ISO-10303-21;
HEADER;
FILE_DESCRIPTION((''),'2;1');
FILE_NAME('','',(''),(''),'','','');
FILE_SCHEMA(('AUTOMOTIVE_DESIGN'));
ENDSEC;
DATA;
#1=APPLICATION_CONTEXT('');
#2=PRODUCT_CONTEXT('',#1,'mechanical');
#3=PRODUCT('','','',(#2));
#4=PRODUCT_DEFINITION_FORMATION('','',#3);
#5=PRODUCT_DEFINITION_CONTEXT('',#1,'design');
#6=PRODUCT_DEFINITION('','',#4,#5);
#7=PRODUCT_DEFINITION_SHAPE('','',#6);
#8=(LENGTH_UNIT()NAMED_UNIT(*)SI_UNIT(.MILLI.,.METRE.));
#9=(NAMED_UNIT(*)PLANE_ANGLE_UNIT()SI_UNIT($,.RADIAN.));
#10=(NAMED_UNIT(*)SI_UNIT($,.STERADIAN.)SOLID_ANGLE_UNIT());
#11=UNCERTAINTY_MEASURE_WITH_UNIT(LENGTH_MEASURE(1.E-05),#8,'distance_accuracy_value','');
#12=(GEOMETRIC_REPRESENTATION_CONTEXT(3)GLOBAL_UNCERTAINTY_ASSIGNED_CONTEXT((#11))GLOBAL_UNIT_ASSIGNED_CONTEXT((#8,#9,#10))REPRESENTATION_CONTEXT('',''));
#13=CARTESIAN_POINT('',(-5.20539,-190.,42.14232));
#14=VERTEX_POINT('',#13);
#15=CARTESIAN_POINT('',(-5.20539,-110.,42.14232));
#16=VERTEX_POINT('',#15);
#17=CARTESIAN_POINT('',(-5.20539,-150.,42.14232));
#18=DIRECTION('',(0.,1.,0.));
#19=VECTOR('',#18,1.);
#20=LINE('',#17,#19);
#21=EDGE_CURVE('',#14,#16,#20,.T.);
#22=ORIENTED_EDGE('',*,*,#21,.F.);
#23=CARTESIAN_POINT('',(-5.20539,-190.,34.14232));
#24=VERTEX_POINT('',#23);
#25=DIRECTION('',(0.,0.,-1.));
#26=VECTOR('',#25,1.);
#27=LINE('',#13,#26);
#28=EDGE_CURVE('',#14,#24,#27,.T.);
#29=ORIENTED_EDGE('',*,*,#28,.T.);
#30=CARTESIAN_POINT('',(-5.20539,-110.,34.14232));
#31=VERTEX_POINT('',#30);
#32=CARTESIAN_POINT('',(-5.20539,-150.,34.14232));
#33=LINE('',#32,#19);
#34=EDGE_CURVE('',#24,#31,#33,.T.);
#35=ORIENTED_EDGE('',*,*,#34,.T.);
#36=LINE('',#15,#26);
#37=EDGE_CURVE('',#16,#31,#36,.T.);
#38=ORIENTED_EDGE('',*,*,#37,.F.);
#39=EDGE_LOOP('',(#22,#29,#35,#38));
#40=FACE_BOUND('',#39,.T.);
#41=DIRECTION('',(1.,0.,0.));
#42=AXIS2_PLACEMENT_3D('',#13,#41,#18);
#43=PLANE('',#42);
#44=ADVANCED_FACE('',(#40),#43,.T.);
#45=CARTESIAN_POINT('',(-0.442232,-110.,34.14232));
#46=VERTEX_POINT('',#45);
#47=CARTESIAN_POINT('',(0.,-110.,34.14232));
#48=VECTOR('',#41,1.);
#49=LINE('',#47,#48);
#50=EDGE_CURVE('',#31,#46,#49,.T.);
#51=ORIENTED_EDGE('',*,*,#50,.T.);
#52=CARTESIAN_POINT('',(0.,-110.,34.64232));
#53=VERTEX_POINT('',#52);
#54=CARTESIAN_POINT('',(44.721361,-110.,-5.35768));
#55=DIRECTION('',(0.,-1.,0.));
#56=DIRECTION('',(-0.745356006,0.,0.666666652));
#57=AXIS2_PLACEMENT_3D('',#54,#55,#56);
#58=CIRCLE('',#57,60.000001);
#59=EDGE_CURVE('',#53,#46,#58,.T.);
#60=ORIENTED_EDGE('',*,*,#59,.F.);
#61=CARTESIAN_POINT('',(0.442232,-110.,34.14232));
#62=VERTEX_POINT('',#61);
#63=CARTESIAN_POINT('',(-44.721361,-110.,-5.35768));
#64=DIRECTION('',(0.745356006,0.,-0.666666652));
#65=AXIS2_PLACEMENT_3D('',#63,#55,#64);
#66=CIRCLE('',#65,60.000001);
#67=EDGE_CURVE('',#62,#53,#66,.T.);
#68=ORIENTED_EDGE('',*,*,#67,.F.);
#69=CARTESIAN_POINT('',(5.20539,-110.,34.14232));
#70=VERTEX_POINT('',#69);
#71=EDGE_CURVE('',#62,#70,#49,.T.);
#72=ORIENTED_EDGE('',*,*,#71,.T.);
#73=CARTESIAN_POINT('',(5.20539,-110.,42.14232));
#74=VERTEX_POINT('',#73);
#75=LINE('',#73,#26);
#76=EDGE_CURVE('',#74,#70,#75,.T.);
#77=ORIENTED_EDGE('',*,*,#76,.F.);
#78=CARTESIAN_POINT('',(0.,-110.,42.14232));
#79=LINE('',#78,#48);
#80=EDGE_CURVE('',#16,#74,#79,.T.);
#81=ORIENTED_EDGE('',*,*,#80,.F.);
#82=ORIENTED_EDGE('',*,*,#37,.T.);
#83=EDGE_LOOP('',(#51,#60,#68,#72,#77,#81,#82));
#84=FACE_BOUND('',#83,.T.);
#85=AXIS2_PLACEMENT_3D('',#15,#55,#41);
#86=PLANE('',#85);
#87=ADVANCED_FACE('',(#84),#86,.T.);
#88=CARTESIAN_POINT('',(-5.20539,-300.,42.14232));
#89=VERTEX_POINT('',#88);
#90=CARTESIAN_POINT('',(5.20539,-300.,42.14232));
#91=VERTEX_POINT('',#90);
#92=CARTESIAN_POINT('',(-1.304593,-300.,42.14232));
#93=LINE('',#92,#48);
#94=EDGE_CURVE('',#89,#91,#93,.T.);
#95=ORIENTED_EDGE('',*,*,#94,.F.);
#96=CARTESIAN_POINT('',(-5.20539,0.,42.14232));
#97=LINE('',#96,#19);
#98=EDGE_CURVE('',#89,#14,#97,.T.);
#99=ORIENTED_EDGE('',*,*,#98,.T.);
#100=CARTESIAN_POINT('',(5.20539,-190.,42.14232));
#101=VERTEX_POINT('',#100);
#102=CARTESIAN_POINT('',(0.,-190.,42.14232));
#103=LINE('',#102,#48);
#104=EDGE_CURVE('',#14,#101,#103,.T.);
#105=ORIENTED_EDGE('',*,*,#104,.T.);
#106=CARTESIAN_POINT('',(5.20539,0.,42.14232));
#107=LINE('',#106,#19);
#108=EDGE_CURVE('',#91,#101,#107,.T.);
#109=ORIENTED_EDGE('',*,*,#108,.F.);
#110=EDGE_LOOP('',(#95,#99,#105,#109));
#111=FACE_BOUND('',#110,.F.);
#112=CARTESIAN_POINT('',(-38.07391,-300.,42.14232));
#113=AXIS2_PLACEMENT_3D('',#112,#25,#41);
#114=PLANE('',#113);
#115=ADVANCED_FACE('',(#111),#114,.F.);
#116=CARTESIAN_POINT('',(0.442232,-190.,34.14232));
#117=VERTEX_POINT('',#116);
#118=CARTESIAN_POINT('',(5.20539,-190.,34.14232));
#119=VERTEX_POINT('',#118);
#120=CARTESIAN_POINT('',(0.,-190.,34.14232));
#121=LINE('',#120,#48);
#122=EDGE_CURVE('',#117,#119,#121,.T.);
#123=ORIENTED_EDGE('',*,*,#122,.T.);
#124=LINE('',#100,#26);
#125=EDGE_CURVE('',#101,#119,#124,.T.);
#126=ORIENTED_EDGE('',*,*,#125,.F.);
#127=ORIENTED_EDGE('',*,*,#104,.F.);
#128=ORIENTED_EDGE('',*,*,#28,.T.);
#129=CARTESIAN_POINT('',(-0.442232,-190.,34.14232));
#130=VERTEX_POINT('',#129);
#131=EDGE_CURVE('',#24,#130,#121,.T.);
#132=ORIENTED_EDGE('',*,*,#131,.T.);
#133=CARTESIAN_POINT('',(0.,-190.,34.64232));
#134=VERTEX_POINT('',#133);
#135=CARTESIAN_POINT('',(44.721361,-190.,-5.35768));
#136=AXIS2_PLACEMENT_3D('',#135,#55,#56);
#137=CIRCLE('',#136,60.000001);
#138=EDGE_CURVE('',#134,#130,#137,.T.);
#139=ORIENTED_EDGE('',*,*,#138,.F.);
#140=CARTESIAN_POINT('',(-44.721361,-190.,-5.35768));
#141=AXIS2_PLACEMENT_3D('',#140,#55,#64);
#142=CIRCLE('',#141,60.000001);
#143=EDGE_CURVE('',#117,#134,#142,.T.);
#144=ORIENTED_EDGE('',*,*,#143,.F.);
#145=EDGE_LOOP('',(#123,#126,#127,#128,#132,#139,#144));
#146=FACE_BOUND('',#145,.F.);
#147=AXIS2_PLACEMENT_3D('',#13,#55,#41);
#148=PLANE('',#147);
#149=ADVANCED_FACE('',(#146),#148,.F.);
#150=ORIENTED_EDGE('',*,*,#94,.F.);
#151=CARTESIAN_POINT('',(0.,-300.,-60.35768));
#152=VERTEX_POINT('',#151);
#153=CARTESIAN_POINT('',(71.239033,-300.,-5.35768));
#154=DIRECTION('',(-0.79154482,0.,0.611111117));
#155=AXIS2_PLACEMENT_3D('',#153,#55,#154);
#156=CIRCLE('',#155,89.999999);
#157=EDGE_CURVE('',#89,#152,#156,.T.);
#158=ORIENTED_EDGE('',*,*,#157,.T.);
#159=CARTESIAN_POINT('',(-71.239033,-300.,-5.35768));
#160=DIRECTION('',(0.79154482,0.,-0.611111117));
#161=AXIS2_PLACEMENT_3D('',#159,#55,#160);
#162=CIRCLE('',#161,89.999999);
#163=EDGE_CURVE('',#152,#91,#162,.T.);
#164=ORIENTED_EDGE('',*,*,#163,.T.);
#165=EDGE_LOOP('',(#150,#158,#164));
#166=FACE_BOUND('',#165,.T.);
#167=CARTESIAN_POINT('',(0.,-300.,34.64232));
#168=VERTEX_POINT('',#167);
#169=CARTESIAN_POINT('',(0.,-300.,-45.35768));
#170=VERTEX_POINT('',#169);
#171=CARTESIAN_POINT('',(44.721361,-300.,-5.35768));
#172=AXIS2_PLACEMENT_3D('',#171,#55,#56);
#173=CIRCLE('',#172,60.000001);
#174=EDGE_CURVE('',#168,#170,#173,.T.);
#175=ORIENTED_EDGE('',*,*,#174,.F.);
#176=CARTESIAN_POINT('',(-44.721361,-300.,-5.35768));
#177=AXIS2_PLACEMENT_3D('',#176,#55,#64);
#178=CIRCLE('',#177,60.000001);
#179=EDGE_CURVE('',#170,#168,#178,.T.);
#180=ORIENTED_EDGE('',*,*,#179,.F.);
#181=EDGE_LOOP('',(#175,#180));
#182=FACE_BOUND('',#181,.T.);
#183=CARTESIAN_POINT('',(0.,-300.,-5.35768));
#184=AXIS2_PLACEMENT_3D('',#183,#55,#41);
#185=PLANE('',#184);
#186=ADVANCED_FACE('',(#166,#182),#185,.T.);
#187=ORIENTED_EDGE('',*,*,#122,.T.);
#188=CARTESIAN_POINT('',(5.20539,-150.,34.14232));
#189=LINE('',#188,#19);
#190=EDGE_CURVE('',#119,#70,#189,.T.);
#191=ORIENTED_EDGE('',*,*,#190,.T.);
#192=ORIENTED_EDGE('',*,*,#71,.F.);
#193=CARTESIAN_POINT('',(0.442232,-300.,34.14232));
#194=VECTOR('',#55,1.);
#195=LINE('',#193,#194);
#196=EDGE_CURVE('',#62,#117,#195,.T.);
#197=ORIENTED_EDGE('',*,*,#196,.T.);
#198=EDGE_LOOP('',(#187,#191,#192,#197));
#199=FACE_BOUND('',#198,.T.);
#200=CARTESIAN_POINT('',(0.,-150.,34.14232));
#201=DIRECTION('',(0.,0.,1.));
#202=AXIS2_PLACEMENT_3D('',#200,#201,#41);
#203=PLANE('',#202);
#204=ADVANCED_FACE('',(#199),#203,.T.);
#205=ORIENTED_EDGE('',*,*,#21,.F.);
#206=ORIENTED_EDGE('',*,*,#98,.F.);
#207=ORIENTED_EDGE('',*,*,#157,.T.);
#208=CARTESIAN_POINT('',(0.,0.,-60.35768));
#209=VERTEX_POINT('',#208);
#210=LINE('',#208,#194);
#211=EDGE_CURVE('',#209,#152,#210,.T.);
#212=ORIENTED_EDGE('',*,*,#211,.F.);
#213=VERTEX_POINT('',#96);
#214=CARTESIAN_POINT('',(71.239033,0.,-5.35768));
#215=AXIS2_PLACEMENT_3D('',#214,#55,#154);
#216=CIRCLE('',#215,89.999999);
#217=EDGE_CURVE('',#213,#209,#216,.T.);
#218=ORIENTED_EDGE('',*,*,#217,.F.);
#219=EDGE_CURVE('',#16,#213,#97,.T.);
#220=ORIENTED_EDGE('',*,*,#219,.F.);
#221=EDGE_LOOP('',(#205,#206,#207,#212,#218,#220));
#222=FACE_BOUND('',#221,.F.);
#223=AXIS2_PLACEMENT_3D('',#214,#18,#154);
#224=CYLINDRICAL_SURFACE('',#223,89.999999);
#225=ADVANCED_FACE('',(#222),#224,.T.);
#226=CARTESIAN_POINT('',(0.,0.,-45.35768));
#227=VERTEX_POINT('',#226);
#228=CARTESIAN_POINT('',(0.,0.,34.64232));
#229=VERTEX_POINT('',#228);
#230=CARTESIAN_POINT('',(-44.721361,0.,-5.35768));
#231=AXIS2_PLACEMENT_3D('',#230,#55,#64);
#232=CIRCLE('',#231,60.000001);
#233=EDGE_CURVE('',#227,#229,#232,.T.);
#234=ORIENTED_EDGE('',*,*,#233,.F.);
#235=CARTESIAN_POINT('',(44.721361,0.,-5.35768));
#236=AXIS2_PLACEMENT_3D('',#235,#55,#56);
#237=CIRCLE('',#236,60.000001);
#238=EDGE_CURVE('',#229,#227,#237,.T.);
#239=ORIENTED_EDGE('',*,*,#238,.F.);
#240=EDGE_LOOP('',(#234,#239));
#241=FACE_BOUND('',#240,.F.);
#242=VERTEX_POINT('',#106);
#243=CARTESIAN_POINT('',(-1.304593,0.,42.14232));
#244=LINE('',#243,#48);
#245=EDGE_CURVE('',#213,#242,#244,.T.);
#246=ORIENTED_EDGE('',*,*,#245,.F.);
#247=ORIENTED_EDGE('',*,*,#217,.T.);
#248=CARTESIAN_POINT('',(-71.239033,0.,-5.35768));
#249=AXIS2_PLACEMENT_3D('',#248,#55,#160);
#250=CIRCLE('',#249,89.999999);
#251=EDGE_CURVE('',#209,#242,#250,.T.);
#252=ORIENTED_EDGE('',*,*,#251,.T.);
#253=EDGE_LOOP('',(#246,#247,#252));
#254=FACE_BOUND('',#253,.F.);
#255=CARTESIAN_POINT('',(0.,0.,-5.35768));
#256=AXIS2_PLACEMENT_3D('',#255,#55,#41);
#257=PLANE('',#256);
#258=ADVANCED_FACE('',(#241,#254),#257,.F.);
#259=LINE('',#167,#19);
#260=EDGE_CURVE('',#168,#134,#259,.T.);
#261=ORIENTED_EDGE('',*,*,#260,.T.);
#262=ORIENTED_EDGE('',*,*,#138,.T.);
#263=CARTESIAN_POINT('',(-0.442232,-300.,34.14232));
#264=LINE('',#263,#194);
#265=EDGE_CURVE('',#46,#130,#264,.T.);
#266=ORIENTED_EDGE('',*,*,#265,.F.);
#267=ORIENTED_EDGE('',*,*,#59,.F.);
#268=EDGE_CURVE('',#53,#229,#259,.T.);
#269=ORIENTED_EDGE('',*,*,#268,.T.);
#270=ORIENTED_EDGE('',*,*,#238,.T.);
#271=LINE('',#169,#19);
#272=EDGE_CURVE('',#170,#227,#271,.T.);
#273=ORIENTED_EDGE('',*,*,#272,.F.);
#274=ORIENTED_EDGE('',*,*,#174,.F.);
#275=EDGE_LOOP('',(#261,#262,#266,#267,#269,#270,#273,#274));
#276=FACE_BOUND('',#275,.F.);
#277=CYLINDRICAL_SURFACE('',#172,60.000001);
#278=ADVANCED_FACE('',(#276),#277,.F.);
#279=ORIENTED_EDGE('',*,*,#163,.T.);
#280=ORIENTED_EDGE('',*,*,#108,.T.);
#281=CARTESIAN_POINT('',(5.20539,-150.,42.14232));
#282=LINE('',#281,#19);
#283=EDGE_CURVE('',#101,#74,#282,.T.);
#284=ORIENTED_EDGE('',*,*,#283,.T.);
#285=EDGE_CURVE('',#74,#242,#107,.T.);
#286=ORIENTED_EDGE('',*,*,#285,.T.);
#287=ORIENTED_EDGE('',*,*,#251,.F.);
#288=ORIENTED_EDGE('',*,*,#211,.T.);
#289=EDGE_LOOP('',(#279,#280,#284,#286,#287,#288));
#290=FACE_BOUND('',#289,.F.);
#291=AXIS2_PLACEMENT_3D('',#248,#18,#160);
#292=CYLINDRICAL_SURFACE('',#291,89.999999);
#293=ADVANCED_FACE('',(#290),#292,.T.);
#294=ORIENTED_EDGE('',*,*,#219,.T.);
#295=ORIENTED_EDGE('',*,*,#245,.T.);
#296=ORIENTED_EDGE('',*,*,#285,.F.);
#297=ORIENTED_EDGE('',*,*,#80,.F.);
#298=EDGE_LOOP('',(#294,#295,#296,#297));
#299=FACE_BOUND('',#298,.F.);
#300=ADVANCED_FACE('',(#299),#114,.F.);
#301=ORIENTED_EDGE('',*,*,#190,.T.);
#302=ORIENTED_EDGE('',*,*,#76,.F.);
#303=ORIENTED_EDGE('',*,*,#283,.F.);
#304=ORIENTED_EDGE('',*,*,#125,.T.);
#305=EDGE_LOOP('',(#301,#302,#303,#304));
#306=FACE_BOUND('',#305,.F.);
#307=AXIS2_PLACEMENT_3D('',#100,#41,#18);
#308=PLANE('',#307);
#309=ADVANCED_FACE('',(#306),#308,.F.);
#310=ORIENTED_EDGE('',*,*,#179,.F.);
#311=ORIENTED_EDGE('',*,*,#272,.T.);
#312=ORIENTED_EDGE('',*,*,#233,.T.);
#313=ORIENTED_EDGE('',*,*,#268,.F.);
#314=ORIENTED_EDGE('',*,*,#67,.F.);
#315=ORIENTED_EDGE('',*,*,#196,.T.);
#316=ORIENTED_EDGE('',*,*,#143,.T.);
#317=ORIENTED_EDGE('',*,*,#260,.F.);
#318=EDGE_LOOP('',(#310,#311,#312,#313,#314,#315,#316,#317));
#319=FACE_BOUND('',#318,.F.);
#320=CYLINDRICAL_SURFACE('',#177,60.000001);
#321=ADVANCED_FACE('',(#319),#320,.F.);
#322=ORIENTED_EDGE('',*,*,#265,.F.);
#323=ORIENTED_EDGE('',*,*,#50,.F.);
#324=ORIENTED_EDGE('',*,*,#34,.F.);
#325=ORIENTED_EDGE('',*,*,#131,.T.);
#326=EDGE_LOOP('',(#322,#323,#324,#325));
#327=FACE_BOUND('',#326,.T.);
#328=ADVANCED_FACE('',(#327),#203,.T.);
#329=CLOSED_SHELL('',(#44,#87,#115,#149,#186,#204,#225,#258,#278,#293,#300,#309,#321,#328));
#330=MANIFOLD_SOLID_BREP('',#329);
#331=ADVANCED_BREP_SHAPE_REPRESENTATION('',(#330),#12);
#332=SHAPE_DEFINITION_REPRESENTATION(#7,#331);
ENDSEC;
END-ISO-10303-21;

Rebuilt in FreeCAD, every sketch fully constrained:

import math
import FreeCAD as App
import Part
import Sketcher

doc = App.newDocument("Part")
params = doc.addObject("Spreadsheet::Sheet", "Params")
for row, (alias, value) in enumerate([
    ("sketch1_radius", "89.999999 mm"),
    ("pad1_length", "300 mm"),
    ("sketch2_radius", "60.000001 mm"),
    ("sketch2_height", "40 mm"),
    ("pocket1_length", "300 mm"),
    ("pocket2_length", "300 mm"),
    ("sketch4_height", "80 mm"),
    ("pocket3_length", "8 mm"),
], start=1):
    params.set(f"A{row}", alias)
    params.set(f"B{row}", "=" + value)
    params.setAlias(f"B{row}", alias)

body = doc.addObject("PartDesign::Body", "Body")

# Sketch on XZ plane
sketch1 = doc.addObject("Sketcher::SketchObject", "Sketch")
body.addObject(sketch1)
sketch1.AttachmentSupport = (doc.XZ_Plane, [""])
sketch1.MapMode = "FlatFace"
sketch1.addGeometry([
    Part.ArcOfCircle(Part.Circle(App.Vector(71.239033, -5.35768, 0), App.Vector(0, 0, 1), 89.999999), math.radians(142.330113), math.radians(217.669887)),
    Part.ArcOfCircle(Part.Circle(App.Vector(-71.239033, -5.35768, 0), App.Vector(0, 0, 1), 89.999999), math.radians(-37.669887), math.radians(37.669887)),
], False)
sketch1.addConstraint([
    Sketcher.Constraint("Coincident", 0, 1, 1, 2),
    Sketcher.Constraint("Coincident", 1, 1, 0, 2),
    Sketcher.Constraint("Equal", 0, 1),
    Sketcher.Constraint("Symmetric", 0, 3, 1, 3, -2),
    Sketcher.Constraint("Radius", 0, 89.999999),
    Sketcher.Constraint("DistanceY", 1, 3, 0, 1, 55.0),
    Sketcher.Constraint("DistanceY", 0, 3, -1, 1, 5.35768),
])
sketch1.setExpression("Constraints[4]", "Params.sketch1_radius")
pad1 = doc.addObject("PartDesign::Pad", "Pad")
body.addObject(pad1)
pad1.Profile = sketch1
pad1.setExpression("Length", "Params.pad1_length")

# Sketch on XZ plane
sketch2 = doc.addObject("Sketcher::SketchObject", "Sketch001")
body.addObject(sketch2)
sketch2.AttachmentSupport = (doc.XZ_Plane, [""])
sketch2.MapMode = "FlatFace"
sketch2.AttachmentOffset = App.Placement(App.Vector(0, 0, 300), App.Rotation())
sketch2.addGeometry([
    Part.ArcOfCircle(Part.Circle(App.Vector(44.721361, -5.35768, 0), App.Vector(0, 0, 1), 60.000001), math.radians(138.189686), math.radians(221.810314)),
    Part.ArcOfCircle(Part.Circle(App.Vector(-44.721361, -5.35768, 0), App.Vector(0, 0, 1), 60.000001), math.radians(-41.810314), math.radians(41.810314)),
], False)
sketch2.addConstraint([
    Sketcher.Constraint("Coincident", 0, 1, 1, 2),
    Sketcher.Constraint("Coincident", 1, 1, 0, 2),
    Sketcher.Constraint("Equal", 0, 1),
    Sketcher.Constraint("Symmetric", 0, 3, 1, 3, -2),
    Sketcher.Constraint("Radius", 0, 60.000001),
    Sketcher.Constraint("DistanceY", 0, 3, 0, 1, 40.0),
    Sketcher.Constraint("DistanceY", 0, 3, -1, 1, 5.35768),
])
sketch2.setExpression("Constraints[4]", "Params.sketch2_radius")
sketch2.setExpression("Constraints[5]", "Params.sketch2_height")
pocket1 = doc.addObject("PartDesign::Pocket", "Pocket")
body.addObject(pocket1)
pocket1.Profile = sketch2
pocket1.setExpression("Length", "Params.pocket1_length")

# Sketch on XZ plane
sketch3 = doc.addObject("Sketcher::SketchObject", "Sketch002")
body.addObject(sketch3)
sketch3.AttachmentSupport = (doc.XZ_Plane, [""])
sketch3.MapMode = "FlatFace"
sketch3.AttachmentOffset = App.Placement(App.Vector(0, 0, 300), App.Rotation())
sketch3.addGeometry([
    Part.LineSegment(App.Vector(-38.07391, 87.307782, 0), App.Vector(-38.07391, 42.14232, 0)),
    Part.LineSegment(App.Vector(-38.07391, 42.14232, 0), App.Vector(35.464724, 42.14232, 0)),
    Part.LineSegment(App.Vector(35.464724, 42.14232, 0), App.Vector(35.464724, 87.307782, 0)),
    Part.LineSegment(App.Vector(35.464724, 87.307782, 0), App.Vector(-38.07391, 87.307782, 0)),
], False)
sketch3.addConstraint([
    Sketcher.Constraint("Coincident", 0, 2, 1, 1),
    Sketcher.Constraint("Coincident", 1, 2, 2, 1),
    Sketcher.Constraint("Coincident", 2, 2, 3, 1),
    Sketcher.Constraint("Coincident", 3, 2, 0, 1),
    Sketcher.Constraint("Vertical", 0),
    Sketcher.Constraint("Horizontal", 1),
    Sketcher.Constraint("Vertical", 2),
    Sketcher.Constraint("Horizontal", 3),
    Sketcher.Constraint("DistanceX", 1, 1, 1, 2, 73.538634),
    Sketcher.Constraint("DistanceY", 0, 2, 0, 1, 45.165462),
    Sketcher.Constraint("DistanceX", 0, 2, -1, 1, 38.07391),
    Sketcher.Constraint("DistanceY", -1, 1, 0, 2, 42.14232),
])
pocket2 = doc.addObject("PartDesign::Pocket", "Pocket001")
body.addObject(pocket2)
pocket2.Profile = sketch3
pocket2.setExpression("Length", "Params.pocket2_length")

# Sketch on XY plane
sketch4 = doc.addObject("Sketcher::SketchObject", "Sketch003")
body.addObject(sketch4)
sketch4.AttachmentSupport = (doc.XY_Plane, [""])
sketch4.MapMode = "FlatFace"
sketch4.AttachmentOffset = App.Placement(App.Vector(0, 0, 42.14232), App.Rotation())
sketch4.addGeometry([
    Part.LineSegment(App.Vector(-5.20539, -110, 0), App.Vector(-5.20539, -190, 0)),
    Part.LineSegment(App.Vector(-5.20539, -190, 0), App.Vector(5.20539, -190, 0)),
    Part.LineSegment(App.Vector(5.20539, -190, 0), App.Vector(5.20539, -110, 0)),
    Part.LineSegment(App.Vector(5.20539, -110, 0), App.Vector(-5.20539, -110, 0)),
], False)
sketch4.addConstraint([
    Sketcher.Constraint("Coincident", 0, 2, 1, 1),
    Sketcher.Constraint("Coincident", 1, 2, 2, 1),
    Sketcher.Constraint("Coincident", 2, 2, 3, 1),
    Sketcher.Constraint("Coincident", 3, 2, 0, 1),
    Sketcher.Constraint("Vertical", 0),
    Sketcher.Constraint("Horizontal", 1),
    Sketcher.Constraint("Vertical", 2),
    Sketcher.Constraint("Horizontal", 3),
    Sketcher.Constraint("DistanceY", 0, 2, 0, 1, 80.0),
    Sketcher.Constraint("DistanceY", 0, 2, -1, 1, 190.0),
    Sketcher.Constraint("DistanceX", 1, 1, 1, 2, 10.41078),
    Sketcher.Constraint("DistanceX", 0, 2, -1, 1, 5.20539),
])
sketch4.setExpression("Constraints[8]", "Params.sketch4_height")
pocket3 = doc.addObject("PartDesign::Pocket", "Pocket002")
body.addObject(pocket3)
pocket3.Profile = sketch4
pocket3.setExpression("Length", "Params.pocket3_length")

doc.recompute()
